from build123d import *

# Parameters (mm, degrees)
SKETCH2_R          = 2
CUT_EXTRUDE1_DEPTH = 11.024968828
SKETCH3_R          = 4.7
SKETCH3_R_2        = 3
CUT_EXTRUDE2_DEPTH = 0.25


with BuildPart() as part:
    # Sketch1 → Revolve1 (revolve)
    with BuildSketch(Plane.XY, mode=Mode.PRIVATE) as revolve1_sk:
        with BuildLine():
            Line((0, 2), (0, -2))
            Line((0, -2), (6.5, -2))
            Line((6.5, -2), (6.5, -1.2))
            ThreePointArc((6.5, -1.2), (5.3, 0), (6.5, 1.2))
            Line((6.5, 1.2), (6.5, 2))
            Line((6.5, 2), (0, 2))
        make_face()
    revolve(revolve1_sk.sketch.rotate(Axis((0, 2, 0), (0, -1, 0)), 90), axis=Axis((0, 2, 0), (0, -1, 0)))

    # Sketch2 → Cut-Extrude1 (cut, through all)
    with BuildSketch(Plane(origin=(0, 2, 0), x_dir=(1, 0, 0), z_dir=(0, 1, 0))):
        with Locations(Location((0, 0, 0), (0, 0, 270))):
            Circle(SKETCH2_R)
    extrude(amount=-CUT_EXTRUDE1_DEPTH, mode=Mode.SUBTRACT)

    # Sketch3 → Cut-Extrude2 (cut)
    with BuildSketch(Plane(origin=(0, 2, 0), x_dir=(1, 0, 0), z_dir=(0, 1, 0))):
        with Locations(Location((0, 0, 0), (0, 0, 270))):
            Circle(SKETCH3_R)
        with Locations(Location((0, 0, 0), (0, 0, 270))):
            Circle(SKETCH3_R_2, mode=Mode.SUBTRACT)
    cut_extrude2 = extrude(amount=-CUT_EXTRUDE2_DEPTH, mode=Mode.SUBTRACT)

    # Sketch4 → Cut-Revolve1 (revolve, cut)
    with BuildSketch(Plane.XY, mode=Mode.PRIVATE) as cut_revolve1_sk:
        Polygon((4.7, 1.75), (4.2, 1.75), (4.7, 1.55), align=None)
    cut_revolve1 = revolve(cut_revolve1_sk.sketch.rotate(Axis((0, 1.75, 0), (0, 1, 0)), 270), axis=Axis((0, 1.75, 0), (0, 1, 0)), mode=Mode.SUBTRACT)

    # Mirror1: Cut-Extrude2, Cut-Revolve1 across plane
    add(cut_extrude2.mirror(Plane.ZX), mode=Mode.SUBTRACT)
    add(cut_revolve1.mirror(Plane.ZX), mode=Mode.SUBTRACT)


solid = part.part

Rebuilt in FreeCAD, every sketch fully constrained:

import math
import FreeCAD as App
import Part
import Sketcher


def add_polygon(sketch, points):
    """Adds a closed chain of lines whose ends are joined by coincident constraints."""
    first, n = sketch.GeometryCount, len(points)
    for a, b in zip(points, points[1:] + points[:1]):
        sketch.addGeometry(Part.LineSegment(App.Vector(*a, 0), App.Vector(*b, 0)), False)
    for i in range(n):
        sketch.addConstraint(Sketcher.Constraint("Coincident", first + i, 2, first + (i + 1) % n, 1))

doc = App.newDocument("Part")
params = doc.addObject("Spreadsheet::Sheet", "Params")
for row, (alias, value) in enumerate([
    ("sketch1_radius", "1.2 mm"),
    ("sketch1_height", "4 mm"),
    ("sketch1_width", "6.5 mm"),
    ("revolution_angle", "360 deg"),
    ("sketch2_diameter", "4 mm"),
    ("sketch3_diameter", "6 mm"),
    ("sketch3_diameter2", "9.4 mm"),
    ("pocket2_length", "0.25 mm"),
    ("sketch4_width", "0.5 mm"),
    ("sketch4_height", "0.2 mm"),
    ("groove_angle", "360 deg"),
], start=1):
    params.set(f"A{row}", alias)
    params.set(f"B{row}", "=" + value)
    params.setAlias(f"B{row}", alias)

body = doc.addObject("PartDesign::Body", "Body")

# Sketch on XY plane
sketch1 = body.newObject("Sketcher::SketchObject", "Sketch")
sketch1.AttachmentSupport = (doc.getObject("XY_Plane"), [""])
sketch1.MapMode = "FlatFace"
sketch1.addGeometry(Part.LineSegment(App.Vector(0, 2, 0), App.Vector(0, -2, 0)), False)
sketch1.addGeometry(Part.LineSegment(App.Vector(0, -2, 0), App.Vector(6.5, -2, 0)), False)
sketch1.addGeometry(Part.LineSegment(App.Vector(6.5, -2, 0), App.Vector(6.5, -1.2, 0)), False)
sketch1.addGeometry(Part.ArcOfCircle(Part.Circle(App.Vector(6.5, 0, 0), App.Vector(0, 0, 1), 1.2), math.radians(90), math.radians(270)), False)
sketch1.addGeometry(Part.LineSegment(App.Vector(6.5, 1.2, 0), App.Vector(6.5, 2, 0)), False)
sketch1.addGeometry(Part.LineSegment(App.Vector(6.5, 2, 0), App.Vector(0, 2, 0)), False)
sketch1.addConstraint(Sketcher.Constraint("Coincident", 0, 2, 1, 1))
sketch1.addConstraint(Sketcher.Constraint("Coincident", 1, 2, 2, 1))
sketch1.addConstraint(Sketcher.Constraint("Coincident", 2, 2, 3, 2))
sketch1.addConstraint(Sketcher.Constraint("Coincident", 3, 1, 4, 1))
sketch1.addConstraint(Sketcher.Constraint("Coincident", 4, 2, 5, 1))
sketch1.addConstraint(Sketcher.Constraint("Coincident", 5, 2, 0, 1))
sketch1.addConstraint(Sketcher.Constraint("Vertical", 0))
sketch1.addConstraint(Sketcher.Constraint("Horizontal", 1))
sketch1.addConstraint(Sketcher.Constraint("Vertical", 2))
sketch1.addConstraint(Sketcher.Constraint("Vertical", 4))
sketch1.addConstraint(Sketcher.Constraint("Horizontal", 5))
sketch1.addConstraint(Sketcher.Constraint("Symmetric", 0, 2, 5, 2, -1, 1))
sketch1.addConstraint(Sketcher.Constraint("Symmetric", 2, 2, 3, 1, -1))
sketch1.addConstraint(Sketcher.Constraint("Vertical", 3, 3, 1, 2))
sketch1.addConstraint(Sketcher.Constraint("Radius", 3, 1.2))
sketch1.addConstraint(Sketcher.Constraint("DistanceY", 0, 2, 0, 1, 4.0))
sketch1.addConstraint(Sketcher.Constraint("DistanceX", 1, 1, 1, 2, 6.5))
sketch1.setExpression("Constraints[14]", "Params.sketch1_radius")
sketch1.setExpression("Constraints[15]", "Params.sketch1_height")
sketch1.setExpression("Constraints[16]", "Params.sketch1_width")
revolution = body.newObject("PartDesign::Revolution", "Revolution")
revolution.Profile = sketch1
revolution.ReferenceAxis = (sketch1, ["V_Axis"])
revolution.setExpression("Angle", "Params.revolution_angle")

# Sketch on XZ plane
sketch2 = body.newObject("Sketcher::SketchObject", "Sketch001")
sketch2.AttachmentSupport = (doc.getObject("XZ_Plane"), [""])
sketch2.MapMode = "FlatFace"
sketch2.AttachmentOffset = App.Placement(App.Vector(0, 0, -2), App.Rotation())
sketch2.addGeometry(Part.Circle(App.Vector(0, 0, 0), App.Vector(0, 0, 1), 2), False)
sketch2.addConstraint(Sketcher.Constraint("Coincident", 0, 3, -1, 1))
sketch2.addConstraint(Sketcher.Constraint("Diameter", 0, 4.0))
sketch2.setExpression("Constraints[1]", "Params.sketch2_diameter")
pocket1 = body.newObject("PartDesign::Pocket", "Pocket")
pocket1.Profile = sketch2
pocket1.Type = "ThroughAll"
pocket1.Reversed = True

# Sketch on XZ plane
sketch3 = body.newObject("Sketcher::SketchObject", "Sketch002")
sketch3.AttachmentSupport = (doc.getObject("XZ_Plane"), [""])
sketch3.MapMode = "FlatFace"
sketch3.AttachmentOffset = App.Placement(App.Vector(0, 0, -2), App.Rotation())
sketch3.addGeometry(Part.Circle(App.Vector(0, 0, 0), App.Vector(0, 0, 1), 4.7), False)
sketch3.addGeometry(Part.Circle(App.Vector(0, 0, 0), App.Vector(0, 0, 1), 3), False)
sketch3.addConstraint(Sketcher.Constraint("Coincident", 0, 3, -1, 1))
sketch3.addConstraint(Sketcher.Constraint("Coincident", 1, 3, -1, 1))
sketch3.addConstraint(Sketcher.Constraint("Diameter", 1, 6.0))
sketch3.addConstraint(Sketcher.Constraint("Diameter", 0, 9.4))
sketch3.setExpression("Constraints[2]", "Params.sketch3_diameter")
sketch3.setExpression("Constraints[3]", "Params.sketch3_diameter2")
pocket2 = body.newObject("PartDesign::Pocket", "Pocket001")
pocket2.Profile = sketch3
pocket2.setExpression("Length", "Params.pocket2_length")
pocket2.Reversed = True

# Sketch on XY plane
sketch4 = body.newObject("Sketcher::SketchObject", "Sketch003")
sketch4.AttachmentSupport = (doc.getObject("XY_Plane"), [""])
sketch4.MapMode = "FlatFace"
add_polygon(sketch4, [(4.7, 1.75), (4.2, 1.75), (4.7, 1.55)])  # lines 0-2
sketch4.addConstraint(Sketcher.Constraint("Horizontal", 0))
sketch4.addConstraint(Sketcher.Constraint("Vertical", 2))
sketch4.addConstraint(Sketcher.Constraint("DistanceX", 0, 2, 0, 1, 0.5))
sketch4.addConstraint(Sketcher.Constraint("DistanceY", 2, 1, 2, 2, 0.2))
sketch4.addConstraint(Sketcher.Constraint("DistanceX", -1, 1, 0, 2, 4.2))
sketch4.addConstraint(Sketcher.Constraint("DistanceY", -1, 1, 0, 2, 1.75))
sketch4.setExpression("Constraints[5]", "Params.sketch4_width")
sketch4.setExpression("Constraints[6]", "Params.sketch4_height")
groove = body.newObject("PartDesign::Groove", "Groove")
groove.Profile = sketch4
groove.ReferenceAxis = (sketch4, ["V_Axis"])
groove.setExpression("Angle", "Params.groove_angle")
doc.recompute()

mirrored = body.newObject("PartDesign::Mirrored", "Mirrored")
mirrored.Originals = [pocket2, groove]
mirrored.MirrorPlane = (doc.getObject("XZ_Plane"), [""])
body.Tip = mirrored

doc.recompute()
